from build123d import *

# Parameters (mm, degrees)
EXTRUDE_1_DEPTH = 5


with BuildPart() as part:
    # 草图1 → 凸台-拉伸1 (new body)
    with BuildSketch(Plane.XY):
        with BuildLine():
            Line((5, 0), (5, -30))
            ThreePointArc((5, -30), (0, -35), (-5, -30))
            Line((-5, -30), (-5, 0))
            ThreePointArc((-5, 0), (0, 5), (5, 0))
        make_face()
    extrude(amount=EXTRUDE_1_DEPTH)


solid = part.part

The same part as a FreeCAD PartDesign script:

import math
import FreeCAD as App
import Part
import Sketcher

V = App.Vector
Q = App.Units.Quantity

doc = App.newDocument("Part")
body = doc.addObject("PartDesign::Body", "Body")

sketch1 = doc.addObject("Sketcher::SketchObject", "Sketch")
body.addObject(sketch1)
sketch1.AttachmentSupport = (doc.XY_Plane, [""])
sketch1.MapMode = "FlatFace"
sketch1.addGeometry([
    Part.LineSegment(V(5, -30, 0), V(5, 0, 0)),
    Part.ArcOfCircle(Part.Circle(V(0, 0, 0), V(0, 0, 1), 5), math.radians(0), math.radians(180)),
    Part.LineSegment(V(-5, 0, 0), V(-5, -30, 0)),
    Part.ArcOfCircle(Part.Circle(V(0, -30, 0), V(0, 0, 1), 5), math.radians(180), math.radians(360)),
], False)
sketch1.addConstraint([
    Sketcher.Constraint("Tangent", 0, 2, 1, 1),
    Sketcher.Constraint("Tangent", 1, 2, 2, 1),
    Sketcher.Constraint("Tangent", 2, 2, 3, 1),
    Sketcher.Constraint("Tangent", 3, 2, 0, 1),
    Sketcher.Constraint("Vertical", 0),
    Sketcher.Constraint("Vertical", 2),
    Sketcher.Constraint("Coincident", 1, 3, -1, 1),
    Sketcher.Constraint("Radius", 1, Q("5 mm")),
    Sketcher.Constraint("DistanceY", 0, 1, 0, 2, Q("30 mm")),
])
pad1 = doc.addObject("PartDesign::Pad", "Pad")
body.addObject(pad1)
pad1.Profile = sketch1
pad1.Length = 5

doc.recompute()
